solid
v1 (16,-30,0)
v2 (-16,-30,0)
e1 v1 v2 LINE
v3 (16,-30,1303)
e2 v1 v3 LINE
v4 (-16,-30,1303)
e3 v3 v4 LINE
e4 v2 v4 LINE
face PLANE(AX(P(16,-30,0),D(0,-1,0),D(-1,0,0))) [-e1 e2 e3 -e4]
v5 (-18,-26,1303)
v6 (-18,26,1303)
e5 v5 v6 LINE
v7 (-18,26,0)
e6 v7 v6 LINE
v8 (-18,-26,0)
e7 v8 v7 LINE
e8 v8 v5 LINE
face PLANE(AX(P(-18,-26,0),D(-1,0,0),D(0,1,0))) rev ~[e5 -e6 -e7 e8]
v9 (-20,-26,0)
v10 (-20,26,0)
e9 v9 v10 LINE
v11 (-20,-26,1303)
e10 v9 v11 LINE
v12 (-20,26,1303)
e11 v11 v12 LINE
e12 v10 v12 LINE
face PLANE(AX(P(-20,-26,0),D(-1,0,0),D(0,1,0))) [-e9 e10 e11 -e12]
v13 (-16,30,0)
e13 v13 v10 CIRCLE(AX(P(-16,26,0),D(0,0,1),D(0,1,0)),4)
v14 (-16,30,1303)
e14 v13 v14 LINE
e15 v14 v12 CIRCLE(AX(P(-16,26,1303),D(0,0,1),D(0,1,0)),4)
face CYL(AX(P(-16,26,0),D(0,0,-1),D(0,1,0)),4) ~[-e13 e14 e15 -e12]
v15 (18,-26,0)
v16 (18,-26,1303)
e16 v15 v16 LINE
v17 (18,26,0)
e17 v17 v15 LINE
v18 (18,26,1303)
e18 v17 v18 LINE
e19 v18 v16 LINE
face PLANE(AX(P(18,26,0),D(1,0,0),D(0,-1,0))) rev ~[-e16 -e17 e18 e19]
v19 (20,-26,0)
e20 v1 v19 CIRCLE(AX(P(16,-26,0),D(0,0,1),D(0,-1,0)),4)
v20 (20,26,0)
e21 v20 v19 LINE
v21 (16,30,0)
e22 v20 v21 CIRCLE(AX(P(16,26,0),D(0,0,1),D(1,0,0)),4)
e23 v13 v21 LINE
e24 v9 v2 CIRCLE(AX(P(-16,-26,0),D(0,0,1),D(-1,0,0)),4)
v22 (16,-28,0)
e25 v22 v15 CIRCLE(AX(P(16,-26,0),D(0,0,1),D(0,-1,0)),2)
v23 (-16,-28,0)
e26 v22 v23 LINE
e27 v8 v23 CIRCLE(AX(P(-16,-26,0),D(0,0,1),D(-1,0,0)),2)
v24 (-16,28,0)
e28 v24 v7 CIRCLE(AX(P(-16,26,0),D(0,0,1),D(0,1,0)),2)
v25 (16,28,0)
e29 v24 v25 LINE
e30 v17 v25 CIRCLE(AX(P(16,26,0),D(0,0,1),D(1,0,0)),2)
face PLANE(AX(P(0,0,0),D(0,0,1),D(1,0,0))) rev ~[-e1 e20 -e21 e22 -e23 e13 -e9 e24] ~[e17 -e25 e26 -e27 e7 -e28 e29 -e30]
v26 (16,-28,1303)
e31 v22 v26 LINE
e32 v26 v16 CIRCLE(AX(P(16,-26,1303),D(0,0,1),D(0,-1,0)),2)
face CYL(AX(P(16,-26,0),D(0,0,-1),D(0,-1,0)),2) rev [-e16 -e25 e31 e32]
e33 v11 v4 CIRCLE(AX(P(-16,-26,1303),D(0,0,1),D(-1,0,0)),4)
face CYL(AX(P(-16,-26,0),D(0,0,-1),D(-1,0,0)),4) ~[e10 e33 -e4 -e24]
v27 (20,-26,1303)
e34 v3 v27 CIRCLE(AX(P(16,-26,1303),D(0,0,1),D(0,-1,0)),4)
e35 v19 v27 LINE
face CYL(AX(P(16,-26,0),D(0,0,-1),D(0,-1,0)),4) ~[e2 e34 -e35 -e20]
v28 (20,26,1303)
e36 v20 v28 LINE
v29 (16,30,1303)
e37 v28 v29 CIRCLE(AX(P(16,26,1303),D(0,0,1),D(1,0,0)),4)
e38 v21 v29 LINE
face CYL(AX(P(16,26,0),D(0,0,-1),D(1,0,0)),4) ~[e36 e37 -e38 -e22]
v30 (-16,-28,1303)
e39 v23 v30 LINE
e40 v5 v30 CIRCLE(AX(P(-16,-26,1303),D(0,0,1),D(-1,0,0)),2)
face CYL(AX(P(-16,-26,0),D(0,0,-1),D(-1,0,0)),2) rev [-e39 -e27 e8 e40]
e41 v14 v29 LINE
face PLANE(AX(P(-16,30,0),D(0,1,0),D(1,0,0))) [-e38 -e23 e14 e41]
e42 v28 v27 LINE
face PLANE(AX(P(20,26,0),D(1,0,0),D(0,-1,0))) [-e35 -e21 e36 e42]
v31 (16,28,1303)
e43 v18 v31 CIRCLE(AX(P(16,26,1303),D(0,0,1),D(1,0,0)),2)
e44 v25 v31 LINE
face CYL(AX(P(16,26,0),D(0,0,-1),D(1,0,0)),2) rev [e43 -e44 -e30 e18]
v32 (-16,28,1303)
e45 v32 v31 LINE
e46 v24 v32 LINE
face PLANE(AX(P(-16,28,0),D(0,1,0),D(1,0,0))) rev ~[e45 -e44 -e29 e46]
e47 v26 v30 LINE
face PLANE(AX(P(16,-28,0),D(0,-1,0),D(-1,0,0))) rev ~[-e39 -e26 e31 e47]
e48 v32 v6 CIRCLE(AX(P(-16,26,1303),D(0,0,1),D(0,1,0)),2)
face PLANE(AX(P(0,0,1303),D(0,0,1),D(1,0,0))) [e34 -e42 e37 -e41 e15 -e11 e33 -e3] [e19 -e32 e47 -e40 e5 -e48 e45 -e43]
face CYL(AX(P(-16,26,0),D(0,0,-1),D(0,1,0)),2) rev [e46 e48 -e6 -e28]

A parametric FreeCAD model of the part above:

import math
import FreeCAD as App
import Part
import Sketcher
Q = App.Units.Quantity

doc = App.newDocument("Part")
body = doc.addObject("PartDesign::Body", "Body")

# Sketch on XY plane
sketch1 = body.newObject("Sketcher::SketchObject", "Sketch")
sketch1.AttachmentSupport = (doc.getObject("XY_Plane"), [""])
sketch1.MapMode = "FlatFace"
sketch1.addGeometry([
    Part.LineSegment(App.Vector(-20, 26, 0), App.Vector(-20, -26, 0)),  # 0
    Part.ArcOfCircle(Part.Circle(App.Vector(-16, -26, 0), App.Vector(0, 0, 1), 4), math.radians(180), math.radians(270)),  # 1
    Part.LineSegment(App.Vector(-16, -30, 0), App.Vector(16, -30, 0)),  # 2
    Part.ArcOfCircle(Part.Circle(App.Vector(16, -26, 0), App.Vector(0, 0, 1), 4), math.radians(-90), math.radians(0)),  # 3
    Part.LineSegment(App.Vector(20, -26, 0), App.Vector(20, 26, 0)),  # 4
    Part.ArcOfCircle(Part.Circle(App.Vector(16, 26, 0), App.Vector(0, 0, 1), 4), math.radians(0), math.radians(90)),  # 5
    Part.LineSegment(App.Vector(16, 30, 0), App.Vector(-16, 30, 0)),  # 6
    Part.ArcOfCircle(Part.Circle(App.Vector(-16, 26, 0), App.Vector(0, 0, 1), 4), math.radians(90), math.radians(180)),  # 7
    Part.ArcOfCircle(Part.Circle(App.Vector(-16, 26, 0), App.Vector(0, 0, 1), 2), math.radians(90), math.radians(180)),  # 8
    Part.LineSegment(App.Vector(-16, 28, 0), App.Vector(16, 28, 0)),  # 9
    Part.ArcOfCircle(Part.Circle(App.Vector(16, 26, 0), App.Vector(0, 0, 1), 2), math.radians(0), math.radians(90)),  # 10
    Part.LineSegment(App.Vector(18, 26, 0), App.Vector(18, -26, 0)),  # 11
    Part.ArcOfCircle(Part.Circle(App.Vector(16, -26, 0), App.Vector(0, 0, 1), 2), math.radians(-90), math.radians(0)),  # 12
    Part.LineSegment(App.Vector(16, -28, 0), App.Vector(-16, -28, 0)),  # 13
    Part.ArcOfCircle(Part.Circle(App.Vector(-16, -26, 0), App.Vector(0, 0, 1), 2), math.radians(180), math.radians(270)),  # 14
    Part.LineSegment(App.Vector(-18, -26, 0), App.Vector(-18, 26, 0)),  # 15
], False)
sketch1.addConstraint([
    Sketcher.Constraint("Tangent", 0, 2, 1, 1),
    Sketcher.Constraint("Tangent", 1, 2, 2, 1),
    Sketcher.Constraint("Tangent", 2, 2, 3, 1),
    Sketcher.Constraint("Tangent", 3, 2, 4, 1),
    Sketcher.Constraint("Tangent", 4, 2, 5, 1),
    Sketcher.Constraint("Tangent", 5, 2, 6, 1),
    Sketcher.Constraint("Tangent", 6, 2, 7, 1),
    Sketcher.Constraint("Tangent", 7, 2, 0, 1),
    Sketcher.Constraint("Tangent", 8, 1, 9, 1),
    Sketcher.Constraint("Tangent", 9, 2, 10, 2),
    Sketcher.Constraint("Tangent", 10, 1, 11, 1),
    Sketcher.Constraint("Tangent", 11, 2, 12, 2),
    Sketcher.Constraint("Tangent", 12, 1, 13, 1),
    Sketcher.Constraint("Tangent", 13, 2, 14, 2),
    Sketcher.Constraint("Tangent", 14, 1, 15, 1),
    Sketcher.Constraint("Tangent", 15, 2, 8, 2),
    Sketcher.Constraint("Vertical", 0),
    Sketcher.Constraint("Horizontal", 2),
    Sketcher.Constraint("Vertical", 4),
    Sketcher.Constraint("Horizontal", 6),
    Sketcher.Constraint("Horizontal", 9),
    Sketcher.Constraint("Vertical", 11),
    Sketcher.Constraint("Horizontal", 13),
    Sketcher.Constraint("Vertical", 15),
    Sketcher.Constraint("Coincident", 8, 3, 7, 3),
    Sketcher.Constraint("Coincident", 10, 3, 5, 3),
    Sketcher.Constraint("Coincident", 12, 3, 3, 3),
    Sketcher.Constraint("Equal", 1, 3),
    Sketcher.Constraint("Equal", 3, 5),
    Sketcher.Constraint("Equal", 5, 7),
    Sketcher.Constraint("Equal", 12, 14),
    Sketcher.Constraint("Symmetric", 1, 3, 5, 3, -1, 1),
    Sketcher.Constraint("Radius", 1, Q("4 mm")),
    Sketcher.Constraint("Radius", 8, Q("2 mm")),
    Sketcher.Constraint("DistanceX", 0, 2, -1, 1, Q("20 mm")),
    Sketcher.Constraint("DistanceY", 1, 2, -1, 1, Q("30 mm")),
])
pad1 = body.newObject("PartDesign::Pad", "Pad")
pad1.Profile = sketch1
pad1.Length = 1303

doc.recompute()
